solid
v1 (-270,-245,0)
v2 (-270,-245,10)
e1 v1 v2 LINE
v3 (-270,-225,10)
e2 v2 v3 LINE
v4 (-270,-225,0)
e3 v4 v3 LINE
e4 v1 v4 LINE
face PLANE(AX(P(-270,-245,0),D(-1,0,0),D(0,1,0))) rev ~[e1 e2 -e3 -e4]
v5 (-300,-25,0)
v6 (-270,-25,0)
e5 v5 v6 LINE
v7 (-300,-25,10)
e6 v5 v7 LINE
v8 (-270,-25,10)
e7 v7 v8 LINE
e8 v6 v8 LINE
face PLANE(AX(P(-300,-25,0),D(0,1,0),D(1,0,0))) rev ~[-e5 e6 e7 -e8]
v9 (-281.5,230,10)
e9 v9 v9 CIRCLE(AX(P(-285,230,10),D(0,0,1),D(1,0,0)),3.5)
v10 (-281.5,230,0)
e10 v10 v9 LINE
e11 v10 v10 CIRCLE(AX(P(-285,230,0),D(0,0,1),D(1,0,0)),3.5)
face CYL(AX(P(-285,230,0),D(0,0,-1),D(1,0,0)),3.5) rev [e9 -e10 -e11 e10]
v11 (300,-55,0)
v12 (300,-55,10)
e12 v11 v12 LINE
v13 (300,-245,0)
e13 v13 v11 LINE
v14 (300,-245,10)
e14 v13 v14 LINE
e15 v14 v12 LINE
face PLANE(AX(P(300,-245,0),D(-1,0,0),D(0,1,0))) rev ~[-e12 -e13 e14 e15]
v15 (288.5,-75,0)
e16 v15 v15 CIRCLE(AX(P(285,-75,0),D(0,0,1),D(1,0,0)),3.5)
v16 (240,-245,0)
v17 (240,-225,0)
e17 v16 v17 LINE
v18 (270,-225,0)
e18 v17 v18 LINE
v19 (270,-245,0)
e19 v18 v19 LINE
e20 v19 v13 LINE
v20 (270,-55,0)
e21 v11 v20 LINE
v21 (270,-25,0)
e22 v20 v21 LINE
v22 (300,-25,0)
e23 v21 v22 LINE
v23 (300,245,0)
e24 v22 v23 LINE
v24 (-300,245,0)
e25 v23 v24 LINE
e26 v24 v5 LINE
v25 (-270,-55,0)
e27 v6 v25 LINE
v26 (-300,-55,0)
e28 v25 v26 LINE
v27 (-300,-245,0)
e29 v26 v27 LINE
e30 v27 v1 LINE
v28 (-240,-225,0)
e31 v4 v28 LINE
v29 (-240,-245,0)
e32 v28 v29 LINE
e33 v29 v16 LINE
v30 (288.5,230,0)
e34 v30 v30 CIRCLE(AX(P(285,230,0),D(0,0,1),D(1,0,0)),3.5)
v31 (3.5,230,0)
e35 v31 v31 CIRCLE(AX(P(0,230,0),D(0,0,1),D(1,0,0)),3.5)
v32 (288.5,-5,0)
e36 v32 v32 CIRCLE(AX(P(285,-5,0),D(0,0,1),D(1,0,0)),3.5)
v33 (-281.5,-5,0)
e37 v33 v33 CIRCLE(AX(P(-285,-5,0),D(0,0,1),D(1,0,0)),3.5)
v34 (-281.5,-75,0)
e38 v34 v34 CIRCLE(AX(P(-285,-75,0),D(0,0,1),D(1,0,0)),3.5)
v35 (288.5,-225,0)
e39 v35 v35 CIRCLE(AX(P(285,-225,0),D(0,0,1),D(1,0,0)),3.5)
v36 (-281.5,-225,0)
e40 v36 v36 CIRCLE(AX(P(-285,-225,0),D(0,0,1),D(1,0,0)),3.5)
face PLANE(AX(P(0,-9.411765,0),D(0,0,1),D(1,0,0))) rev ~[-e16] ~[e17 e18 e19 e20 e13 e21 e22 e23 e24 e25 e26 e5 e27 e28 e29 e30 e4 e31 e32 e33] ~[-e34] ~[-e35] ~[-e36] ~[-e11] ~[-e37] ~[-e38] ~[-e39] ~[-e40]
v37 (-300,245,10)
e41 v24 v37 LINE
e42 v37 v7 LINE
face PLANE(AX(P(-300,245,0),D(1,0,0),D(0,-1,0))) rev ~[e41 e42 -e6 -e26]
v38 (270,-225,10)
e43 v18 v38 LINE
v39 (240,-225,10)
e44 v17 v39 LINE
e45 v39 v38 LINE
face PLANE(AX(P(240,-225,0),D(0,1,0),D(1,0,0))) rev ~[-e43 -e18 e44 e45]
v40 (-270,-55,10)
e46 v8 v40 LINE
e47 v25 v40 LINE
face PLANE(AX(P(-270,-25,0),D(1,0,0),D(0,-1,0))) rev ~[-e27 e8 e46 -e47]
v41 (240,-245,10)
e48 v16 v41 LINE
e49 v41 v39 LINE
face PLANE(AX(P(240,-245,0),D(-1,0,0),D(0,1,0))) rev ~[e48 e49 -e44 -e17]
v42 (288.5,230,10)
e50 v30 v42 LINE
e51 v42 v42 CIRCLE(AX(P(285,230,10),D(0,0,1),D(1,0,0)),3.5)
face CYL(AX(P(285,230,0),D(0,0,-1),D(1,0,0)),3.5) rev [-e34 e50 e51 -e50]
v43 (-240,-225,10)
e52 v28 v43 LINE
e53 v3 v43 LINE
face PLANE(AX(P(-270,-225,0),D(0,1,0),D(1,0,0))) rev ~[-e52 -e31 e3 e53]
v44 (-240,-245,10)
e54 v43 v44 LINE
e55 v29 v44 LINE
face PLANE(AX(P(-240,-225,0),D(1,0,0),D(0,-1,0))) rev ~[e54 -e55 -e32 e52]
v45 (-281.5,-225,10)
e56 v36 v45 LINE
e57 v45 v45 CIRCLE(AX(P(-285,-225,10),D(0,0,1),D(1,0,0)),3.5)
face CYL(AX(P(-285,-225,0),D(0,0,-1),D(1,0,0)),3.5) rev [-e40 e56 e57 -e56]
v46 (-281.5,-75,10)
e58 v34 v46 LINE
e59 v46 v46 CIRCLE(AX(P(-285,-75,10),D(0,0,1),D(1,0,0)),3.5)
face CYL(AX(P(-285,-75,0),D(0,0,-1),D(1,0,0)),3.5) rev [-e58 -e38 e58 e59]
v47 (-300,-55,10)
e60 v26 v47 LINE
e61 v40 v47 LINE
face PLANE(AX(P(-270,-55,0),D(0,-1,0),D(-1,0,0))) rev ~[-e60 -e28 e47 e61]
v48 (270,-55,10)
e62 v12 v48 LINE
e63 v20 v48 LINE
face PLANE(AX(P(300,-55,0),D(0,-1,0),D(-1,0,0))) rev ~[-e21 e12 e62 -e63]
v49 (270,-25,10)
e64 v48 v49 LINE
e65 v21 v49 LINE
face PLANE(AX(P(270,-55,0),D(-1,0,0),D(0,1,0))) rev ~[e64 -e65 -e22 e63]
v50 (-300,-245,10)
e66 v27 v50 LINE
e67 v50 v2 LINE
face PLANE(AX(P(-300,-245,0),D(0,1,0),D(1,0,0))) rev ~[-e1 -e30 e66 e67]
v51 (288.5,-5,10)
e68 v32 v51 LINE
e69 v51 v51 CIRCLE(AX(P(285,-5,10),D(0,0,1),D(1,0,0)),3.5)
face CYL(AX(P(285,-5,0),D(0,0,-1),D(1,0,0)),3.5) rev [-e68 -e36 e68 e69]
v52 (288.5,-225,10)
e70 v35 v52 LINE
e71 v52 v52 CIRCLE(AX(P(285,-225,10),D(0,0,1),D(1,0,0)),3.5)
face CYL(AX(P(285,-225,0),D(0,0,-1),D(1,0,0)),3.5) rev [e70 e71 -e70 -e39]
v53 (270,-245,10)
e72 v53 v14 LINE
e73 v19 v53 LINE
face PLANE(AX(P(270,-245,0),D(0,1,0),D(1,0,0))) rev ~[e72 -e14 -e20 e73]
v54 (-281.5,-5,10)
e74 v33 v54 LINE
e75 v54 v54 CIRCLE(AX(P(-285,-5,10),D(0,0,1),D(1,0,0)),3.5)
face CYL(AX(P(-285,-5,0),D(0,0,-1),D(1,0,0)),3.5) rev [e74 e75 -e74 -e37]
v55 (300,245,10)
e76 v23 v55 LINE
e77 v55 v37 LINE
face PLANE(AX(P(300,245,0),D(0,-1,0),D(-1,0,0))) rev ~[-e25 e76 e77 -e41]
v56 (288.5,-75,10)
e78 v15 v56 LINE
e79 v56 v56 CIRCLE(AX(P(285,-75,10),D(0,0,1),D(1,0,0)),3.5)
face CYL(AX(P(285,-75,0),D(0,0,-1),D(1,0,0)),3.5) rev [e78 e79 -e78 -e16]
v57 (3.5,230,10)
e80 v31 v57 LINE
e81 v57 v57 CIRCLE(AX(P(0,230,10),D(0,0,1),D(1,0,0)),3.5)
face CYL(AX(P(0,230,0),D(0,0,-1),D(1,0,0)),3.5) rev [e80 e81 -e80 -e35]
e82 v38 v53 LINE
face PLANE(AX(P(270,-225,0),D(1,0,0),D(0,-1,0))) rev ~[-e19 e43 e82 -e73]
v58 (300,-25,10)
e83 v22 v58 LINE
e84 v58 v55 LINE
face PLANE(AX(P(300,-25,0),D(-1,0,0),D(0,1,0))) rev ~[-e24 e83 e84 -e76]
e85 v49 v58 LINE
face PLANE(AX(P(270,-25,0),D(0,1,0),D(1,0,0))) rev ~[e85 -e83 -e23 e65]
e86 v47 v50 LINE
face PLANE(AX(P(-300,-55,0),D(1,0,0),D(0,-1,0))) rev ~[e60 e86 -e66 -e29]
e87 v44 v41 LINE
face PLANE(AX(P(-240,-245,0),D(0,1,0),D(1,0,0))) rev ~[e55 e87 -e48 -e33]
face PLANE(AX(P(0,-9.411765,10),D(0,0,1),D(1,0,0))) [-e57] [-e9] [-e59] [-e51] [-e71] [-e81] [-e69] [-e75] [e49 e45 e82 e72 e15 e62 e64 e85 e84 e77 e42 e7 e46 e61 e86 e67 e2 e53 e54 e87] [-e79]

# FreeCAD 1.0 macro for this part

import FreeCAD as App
import Part
import Sketcher
from FreeCAD import Vector
Q = App.Units.Quantity


def add_polygon(sketch, points):
    """Adds a closed chain of lines whose ends are joined by coincident constraints."""
    first, n = sketch.GeometryCount, len(points)
    for a, b in zip(points, points[1:] + points[:1]):
        sketch.addGeometry(Part.LineSegment(App.Vector(*a, 0), App.Vector(*b, 0)), False)
    for i in range(n):
        sketch.addConstraint(Sketcher.Constraint("Coincident", first + i, 2, first + (i + 1) % n, 1))

doc = App.newDocument("Part")
body = doc.addObject("PartDesign::Body", "Body")

# Sketch on XY plane
sketch1 = doc.addObject("Sketcher::SketchObject", "Sketch")
body.addObject(sketch1)
sketch1.AttachmentSupport = (doc.XY_Plane, [""])
sketch1.MapMode = "FlatFace"
add_polygon(sketch1, [(300, -25), (300, 245), (-300, 245), (-300, -25), (-270, -25), (-270, -55), (-300, -55), (-300, -245), (-270, -245), (-270, -225), (-240, -225), (-240, -245), (240, -245), (240, -225), (270, -225), (270, -245), (300, -245), (300, -55), (270, -55), (270, -25)])  # lines 0-19
sketch1.addGeometry(Part.Circle(Vector(-285, -225, 0), Vector(0, 0, 1), 3.5), False)  # 20
sketch1.addGeometry(Part.Circle(Vector(-285, -75, 0), Vector(0, 0, 1), 3.5), False)  # 21
sketch1.addGeometry(Part.Circle(Vector(-285, -5, 0), Vector(0, 0, 1), 3.5), False)  # 22
sketch1.addGeometry(Part.Circle(Vector(285, -225, 0), Vector(0, 0, 1), 3.5), False)  # 23
sketch1.addGeometry(Part.Circle(Vector(285, -75, 0), Vector(0, 0, 1), 3.5), False)  # 24
sketch1.addGeometry(Part.Circle(Vector(285, -5, 0), Vector(0, 0, 1), 3.5), False)  # 25
sketch1.addGeometry(Part.Circle(Vector(-285, 230, 0), Vector(0, 0, 1), 3.5), False)  # 26
sketch1.addGeometry(Part.Circle(Vector(0, 230, 0), Vector(0, 0, 1), 3.5), False)  # 27
sketch1.addGeometry(Part.Circle(Vector(285, 230, 0), Vector(0, 0, 1), 3.5), False)  # 28
sketch1.addConstraint(Sketcher.Constraint("Vertical", 0))
sketch1.addConstraint(Sketcher.Constraint("Horizontal", 1))
sketch1.addConstraint(Sketcher.Constraint("Vertical", 2))
sketch1.addConstraint(Sketcher.Constraint("Horizontal", 3))
sketch1.addConstraint(Sketcher.Constraint("Vertical", 4))
sketch1.addConstraint(Sketcher.Constraint("Horizontal", 5))
sketch1.addConstraint(Sketcher.Constraint("Vertical", 6))
sketch1.addConstraint(Sketcher.Constraint("Horizontal", 7))
sketch1.addConstraint(Sketcher.Constraint("Vertical", 8))
sketch1.addConstraint(Sketcher.Constraint("Horizontal", 9))
sketch1.addConstraint(Sketcher.Constraint("Vertical", 10))
sketch1.addConstraint(Sketcher.Constraint("Horizontal", 11))
sketch1.addConstraint(Sketcher.Constraint("Vertical", 12))
sketch1.addConstraint(Sketcher.Constraint("Horizontal", 13))
sketch1.addConstraint(Sketcher.Constraint("Vertical", 14))
sketch1.addConstraint(Sketcher.Constraint("Horizontal", 15))
sketch1.addConstraint(Sketcher.Constraint("Vertical", 16))
sketch1.addConstraint(Sketcher.Constraint("Horizontal", 17))
sketch1.addConstraint(Sketcher.Constraint("Vertical", 18))
sketch1.addConstraint(Sketcher.Constraint("Horizontal", 19))
sketch1.addConstraint(Sketcher.Constraint("Equal", 20, 21))
sketch1.addConstraint(Sketcher.Constraint("Equal", 21, 22))
sketch1.addConstraint(Sketcher.Constraint("Equal", 22, 23))
sketch1.addConstraint(Sketcher.Constraint("Equal", 23, 24))
sketch1.addConstraint(Sketcher.Constraint("Equal", 24, 25))
sketch1.addConstraint(Sketcher.Constraint("Equal", 25, 26))
sketch1.addConstraint(Sketcher.Constraint("Equal", 26, 27))
sketch1.addConstraint(Sketcher.Constraint("Equal", 27, 28))
sketch1.addConstraint(Sketcher.Constraint("Symmetric", 0, 2, 6, 2, -1, 1))
sketch1.addConstraint(Sketcher.Constraint("Symmetric", 1, 2, 15, 2, -1, 1))
sketch1.addConstraint(Sketcher.Constraint("Symmetric", 20, 3, 23, 3, -2))
sketch1.addConstraint(Sketcher.Constraint("Symmetric", 21, 3, 24, 3, -2))
sketch1.addConstraint(Sketcher.Constraint("Symmetric", 22, 3, 25, 3, -2))
sketch1.addConstraint(Sketcher.Constraint("Symmetric", 26, 3, 28, 3, -2))
sketch1.addConstraint(Sketcher.Constraint("Symmetric", 9, 2, 12, 2, -2))
sketch1.addConstraint(Sketcher.Constraint("Symmetric", 5, 2, 16, 2, -2))
sketch1.addConstraint(Sketcher.Constraint("Symmetric", 3, 2, 18, 2, -2))
sketch1.addConstraint(Sketcher.Constraint("PointOnObject", 27, 3, -2))
sketch1.addConstraint(Sketcher.Constraint("Horizontal", 26, 3, 27, 3))
sketch1.addConstraint(Sketcher.Constraint("Horizontal", 23, 3, 8, 2))
sketch1.addConstraint(Sketcher.Constraint("Horizontal", 7, 2, 10, 2))
sketch1.addConstraint(Sketcher.Constraint("Vertical", 20, 3, 21, 3))
sketch1.addConstraint(Sketcher.Constraint("Vertical", 21, 3, 22, 3))
sketch1.addConstraint(Sketcher.Constraint("Vertical", 22, 3, 26, 3))
sketch1.addConstraint(Sketcher.Constraint("Vertical", 4, 2, 7, 2))
sketch1.addConstraint(Sketcher.Constraint("Vertical", 14, 2, 17, 2))
sketch1.addConstraint(Sketcher.Constraint("Equal", 7, 9))
sketch1.addConstraint(Sketcher.Constraint("Equal", 19, 4))
sketch1.addConstraint(Sketcher.Constraint("Diameter", 20, Q("7 mm")))
sketch1.addConstraint(Sketcher.Constraint("DistanceX", 1, 2, 1, 1, Q("600 mm")))
sketch1.addConstraint(Sketcher.Constraint("DistanceX", 3, 1, 3, 2, Q("30 mm")))
sketch1.addConstraint(Sketcher.Constraint("DistanceY", 0, 1, 0, 2, Q("270 mm")))
sketch1.addConstraint(Sketcher.Constraint("DistanceY", 6, 2, 6, 1, Q("190 mm")))
sketch1.addConstraint(Sketcher.Constraint("DistanceY", 8, 1, 8, 2, Q("20 mm")))
sketch1.addConstraint(Sketcher.Constraint("DistanceX", 20, 3, -1, 1, Q("285 mm")))
sketch1.addConstraint(Sketcher.Constraint("DistanceY", 21, 3, -1, 1, Q("75 mm")))
sketch1.addConstraint(Sketcher.Constraint("DistanceY", 22, 3, -1, 1, Q("5 mm")))
sketch1.addConstraint(Sketcher.Constraint("DistanceY", -1, 1, 26, 3, Q("230 mm")))
pad1 = doc.addObject("PartDesign::Pad", "Pad")
body.addObject(pad1)
pad1.Profile = sketch1
pad1.Length = 10

doc.recompute()
